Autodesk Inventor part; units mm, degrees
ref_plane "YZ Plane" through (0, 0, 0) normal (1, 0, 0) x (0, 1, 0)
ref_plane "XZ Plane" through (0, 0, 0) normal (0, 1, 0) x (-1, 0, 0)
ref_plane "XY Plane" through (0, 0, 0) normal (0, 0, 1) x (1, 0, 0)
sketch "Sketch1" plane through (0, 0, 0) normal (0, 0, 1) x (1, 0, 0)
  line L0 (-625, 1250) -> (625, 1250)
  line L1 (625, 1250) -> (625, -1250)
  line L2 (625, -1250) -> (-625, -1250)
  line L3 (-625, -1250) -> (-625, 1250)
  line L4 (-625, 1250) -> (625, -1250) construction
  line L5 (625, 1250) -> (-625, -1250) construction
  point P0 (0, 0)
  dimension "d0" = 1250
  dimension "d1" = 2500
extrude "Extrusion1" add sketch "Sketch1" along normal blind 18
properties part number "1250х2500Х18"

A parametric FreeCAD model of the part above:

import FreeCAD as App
import Part
import Sketcher

V = App.Vector
Q = App.Units.Quantity

doc = App.newDocument("Part")
body = doc.addObject("PartDesign::Body", "Body")

sketch1 = body.newObject("Sketcher::SketchObject", "Sketch")
sketch1.AttachmentSupport = (doc.getObject("XY_Plane"), [""])
sketch1.MapMode = "FlatFace"
sketch1.addGeometry(Part.LineSegment(V(625, 1250, 0), V(-625, 1250, 0)), False)
sketch1.addGeometry(Part.LineSegment(V(-625, 1250, 0), V(-625, -1250, 0)), False)
sketch1.addGeometry(Part.LineSegment(V(-625, -1250, 0), V(625, -1250, 0)), False)
sketch1.addGeometry(Part.LineSegment(V(625, -1250, 0), V(625, 1250, 0)), False)
sketch1.addConstraint(Sketcher.Constraint("Coincident", 0, 2, 1, 1))
sketch1.addConstraint(Sketcher.Constraint("Coincident", 1, 2, 2, 1))
sketch1.addConstraint(Sketcher.Constraint("Coincident", 2, 2, 3, 1))
sketch1.addConstraint(Sketcher.Constraint("Coincident", 3, 2, 0, 1))
sketch1.addConstraint(Sketcher.Constraint("Horizontal", 0))
sketch1.addConstraint(Sketcher.Constraint("Vertical", 1))
sketch1.addConstraint(Sketcher.Constraint("Horizontal", 2))
sketch1.addConstraint(Sketcher.Constraint("Vertical", 3))
sketch1.addConstraint(Sketcher.Constraint("Symmetric", 0, 2, 2, 2, -1, 1))
sketch1.addConstraint(Sketcher.Constraint("DistanceX", 0, 2, 0, 1, Q("1250 mm")))
sketch1.addConstraint(Sketcher.Constraint("DistanceY", 1, 2, 1, 1, Q("2500 mm")))
pad1 = body.newObject("PartDesign::Pad", "Pad")
pad1.Profile = sketch1
pad1.Length = 18

doc.recompute()
